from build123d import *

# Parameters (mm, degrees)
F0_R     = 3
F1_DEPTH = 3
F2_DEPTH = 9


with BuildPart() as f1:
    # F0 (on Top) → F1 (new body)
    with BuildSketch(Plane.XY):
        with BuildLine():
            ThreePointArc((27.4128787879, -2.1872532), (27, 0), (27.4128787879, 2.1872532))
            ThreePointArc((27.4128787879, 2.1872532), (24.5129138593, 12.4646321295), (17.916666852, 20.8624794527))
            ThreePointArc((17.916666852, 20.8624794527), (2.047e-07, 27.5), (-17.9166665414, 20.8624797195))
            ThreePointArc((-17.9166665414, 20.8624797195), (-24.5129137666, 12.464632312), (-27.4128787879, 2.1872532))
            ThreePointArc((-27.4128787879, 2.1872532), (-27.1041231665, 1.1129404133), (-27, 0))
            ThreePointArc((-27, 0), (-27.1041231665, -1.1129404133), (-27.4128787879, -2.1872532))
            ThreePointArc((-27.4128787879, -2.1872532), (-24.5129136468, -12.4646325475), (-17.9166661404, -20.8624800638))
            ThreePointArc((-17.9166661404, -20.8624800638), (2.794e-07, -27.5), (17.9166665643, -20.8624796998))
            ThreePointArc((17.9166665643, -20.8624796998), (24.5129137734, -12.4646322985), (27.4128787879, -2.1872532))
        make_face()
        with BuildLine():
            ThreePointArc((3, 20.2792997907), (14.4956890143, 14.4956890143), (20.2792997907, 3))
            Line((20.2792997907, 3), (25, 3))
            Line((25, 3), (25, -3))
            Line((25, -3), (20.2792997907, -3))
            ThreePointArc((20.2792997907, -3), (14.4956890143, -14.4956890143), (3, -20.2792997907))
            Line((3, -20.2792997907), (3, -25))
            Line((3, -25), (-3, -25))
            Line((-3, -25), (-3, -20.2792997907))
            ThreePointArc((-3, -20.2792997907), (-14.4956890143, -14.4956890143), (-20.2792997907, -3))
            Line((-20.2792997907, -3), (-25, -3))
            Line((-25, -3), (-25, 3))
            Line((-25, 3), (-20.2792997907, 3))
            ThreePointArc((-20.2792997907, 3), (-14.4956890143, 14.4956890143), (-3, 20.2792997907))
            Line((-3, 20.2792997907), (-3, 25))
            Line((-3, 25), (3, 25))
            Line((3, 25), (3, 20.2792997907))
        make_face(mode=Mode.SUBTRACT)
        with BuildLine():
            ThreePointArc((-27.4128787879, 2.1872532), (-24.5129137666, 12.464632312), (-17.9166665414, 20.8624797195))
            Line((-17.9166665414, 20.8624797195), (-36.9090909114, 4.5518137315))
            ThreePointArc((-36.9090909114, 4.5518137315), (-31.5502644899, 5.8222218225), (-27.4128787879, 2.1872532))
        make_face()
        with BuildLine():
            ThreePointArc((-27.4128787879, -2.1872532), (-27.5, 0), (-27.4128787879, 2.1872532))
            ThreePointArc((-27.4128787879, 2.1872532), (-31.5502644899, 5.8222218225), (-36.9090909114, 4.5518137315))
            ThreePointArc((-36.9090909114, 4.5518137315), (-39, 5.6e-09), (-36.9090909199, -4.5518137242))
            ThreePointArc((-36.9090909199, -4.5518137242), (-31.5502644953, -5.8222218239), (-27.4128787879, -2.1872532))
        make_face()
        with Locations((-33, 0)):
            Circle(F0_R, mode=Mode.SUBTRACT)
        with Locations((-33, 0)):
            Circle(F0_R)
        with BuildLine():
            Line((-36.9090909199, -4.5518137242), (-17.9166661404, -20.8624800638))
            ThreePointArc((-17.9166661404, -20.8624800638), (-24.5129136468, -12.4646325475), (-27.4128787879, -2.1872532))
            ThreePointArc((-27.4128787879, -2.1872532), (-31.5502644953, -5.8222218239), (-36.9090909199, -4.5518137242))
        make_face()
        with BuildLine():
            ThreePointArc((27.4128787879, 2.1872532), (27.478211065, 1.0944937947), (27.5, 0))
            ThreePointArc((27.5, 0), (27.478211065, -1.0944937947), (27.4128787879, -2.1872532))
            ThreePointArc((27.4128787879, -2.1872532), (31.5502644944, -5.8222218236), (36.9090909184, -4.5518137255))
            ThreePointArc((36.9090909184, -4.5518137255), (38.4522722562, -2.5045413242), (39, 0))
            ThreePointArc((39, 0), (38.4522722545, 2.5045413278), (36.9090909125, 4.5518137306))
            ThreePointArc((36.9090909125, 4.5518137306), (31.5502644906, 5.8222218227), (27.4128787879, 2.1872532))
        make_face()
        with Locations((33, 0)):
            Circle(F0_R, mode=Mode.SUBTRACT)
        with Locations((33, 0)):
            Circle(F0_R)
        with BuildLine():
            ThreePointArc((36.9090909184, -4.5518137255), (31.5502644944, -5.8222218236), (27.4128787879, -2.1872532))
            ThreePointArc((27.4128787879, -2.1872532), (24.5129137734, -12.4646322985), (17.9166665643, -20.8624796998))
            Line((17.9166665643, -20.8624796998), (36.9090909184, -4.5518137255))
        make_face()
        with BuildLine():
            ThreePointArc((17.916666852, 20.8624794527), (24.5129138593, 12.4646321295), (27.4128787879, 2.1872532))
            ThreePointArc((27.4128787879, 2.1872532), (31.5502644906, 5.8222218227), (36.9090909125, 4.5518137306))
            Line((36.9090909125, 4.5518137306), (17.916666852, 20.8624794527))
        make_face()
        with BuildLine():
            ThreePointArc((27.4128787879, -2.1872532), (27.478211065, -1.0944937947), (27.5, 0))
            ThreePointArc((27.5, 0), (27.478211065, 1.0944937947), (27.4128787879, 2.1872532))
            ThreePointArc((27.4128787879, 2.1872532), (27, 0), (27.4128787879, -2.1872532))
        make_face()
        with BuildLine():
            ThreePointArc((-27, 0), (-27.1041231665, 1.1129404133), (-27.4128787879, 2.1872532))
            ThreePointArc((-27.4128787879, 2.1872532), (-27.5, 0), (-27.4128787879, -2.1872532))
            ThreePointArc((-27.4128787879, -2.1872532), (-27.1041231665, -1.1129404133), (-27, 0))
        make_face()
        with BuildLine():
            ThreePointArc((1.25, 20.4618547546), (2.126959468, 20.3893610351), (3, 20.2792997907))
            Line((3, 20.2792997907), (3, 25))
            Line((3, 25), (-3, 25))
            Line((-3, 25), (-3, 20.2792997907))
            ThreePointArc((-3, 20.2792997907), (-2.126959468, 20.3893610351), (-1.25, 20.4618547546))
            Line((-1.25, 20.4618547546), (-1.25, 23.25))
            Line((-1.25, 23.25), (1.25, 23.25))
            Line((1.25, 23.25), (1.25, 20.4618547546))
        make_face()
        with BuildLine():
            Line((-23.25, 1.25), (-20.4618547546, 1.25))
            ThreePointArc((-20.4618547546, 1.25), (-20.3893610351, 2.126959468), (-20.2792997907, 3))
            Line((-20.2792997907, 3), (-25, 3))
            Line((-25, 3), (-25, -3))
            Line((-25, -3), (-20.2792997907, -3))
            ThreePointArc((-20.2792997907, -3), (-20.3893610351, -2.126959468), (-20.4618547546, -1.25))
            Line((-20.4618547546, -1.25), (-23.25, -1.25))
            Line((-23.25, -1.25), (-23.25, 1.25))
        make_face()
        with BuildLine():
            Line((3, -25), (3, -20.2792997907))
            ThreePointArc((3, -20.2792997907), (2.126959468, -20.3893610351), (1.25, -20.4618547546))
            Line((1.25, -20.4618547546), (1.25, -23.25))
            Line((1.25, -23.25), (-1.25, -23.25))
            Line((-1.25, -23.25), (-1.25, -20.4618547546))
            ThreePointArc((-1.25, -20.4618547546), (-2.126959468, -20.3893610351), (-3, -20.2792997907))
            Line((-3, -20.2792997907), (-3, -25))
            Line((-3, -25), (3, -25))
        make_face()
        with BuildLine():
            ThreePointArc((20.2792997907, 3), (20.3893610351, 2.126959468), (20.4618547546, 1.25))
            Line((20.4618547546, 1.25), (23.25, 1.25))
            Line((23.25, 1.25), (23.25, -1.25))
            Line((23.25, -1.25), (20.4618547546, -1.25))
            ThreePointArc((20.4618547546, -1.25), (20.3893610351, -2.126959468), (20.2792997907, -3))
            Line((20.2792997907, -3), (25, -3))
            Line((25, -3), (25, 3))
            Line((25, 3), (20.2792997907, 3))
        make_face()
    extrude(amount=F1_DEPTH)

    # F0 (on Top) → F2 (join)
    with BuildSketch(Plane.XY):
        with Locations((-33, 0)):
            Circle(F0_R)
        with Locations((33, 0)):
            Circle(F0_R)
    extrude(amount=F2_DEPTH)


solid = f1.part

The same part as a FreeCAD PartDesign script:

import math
import FreeCAD as App
import Part
import Sketcher
from FreeCAD import Vector
Q = App.Units.Quantity

doc = App.newDocument("Part")
body = doc.addObject("PartDesign::Body", "Body")

# Sketch on XY plane
sketch1 = body.newObject("Sketcher::SketchObject", "Sketch")
sketch1.AttachmentSupport = (doc.getObject("XY_Plane"), [""])
sketch1.MapMode = "FlatFace"
sketch1.addGeometry([
    Part.ArcOfCircle(Part.Circle(Vector(33, 0, 0), Vector(0, 0, 1), 6), math.radians(0), math.radians(49)),  # 0
    Part.LineSegment(Vector(36.9, 4.6, 0), Vector(17.9, 20.9, 0)),  # 1
    Part.ArcOfCircle(Part.Circle(Vector(0, 0, 0), Vector(0, 0, 1), 27.5), math.radians(49), math.radians(131)),  # 2
    Part.LineSegment(Vector(-17.9, 20.9, 0), Vector(-36.9, 4.6, 0)),  # 3
    Part.ArcOfCircle(Part.Circle(Vector(-33, 0, 0), Vector(0, 0, 1), 6), math.radians(131), math.radians(229)),  # 4
    Part.LineSegment(Vector(-36.9, -4.6, 0), Vector(-17.9, -20.9, 0)),  # 5
    Part.ArcOfCircle(Part.Circle(Vector(0, 0, 0), Vector(0, 0, 1), 27.5), math.radians(-131), math.radians(-49)),  # 6
    Part.LineSegment(Vector(17.9, -20.9, 0), Vector(36.9, -4.6, 0)),  # 7
    Part.ArcOfCircle(Part.Circle(Vector(33, 0, 0), Vector(0, 0, 1), 6), math.radians(-49), math.radians(0)),  # 8
    Part.ArcOfCircle(Part.Circle(Vector(0, 0, 0), Vector(0, 0, 1), 20.5), math.radians(8), math.radians(82)),  # 9
    Part.ArcOfCircle(Part.Circle(Vector(0, 0, 0), Vector(0, 0, 1), 20.5), math.radians(3.5), math.radians(8.41)),  # 10
    Part.LineSegment(Vector(20.5, 1.2, 0), Vector(23.2, 1.2, 0)),  # 11
    Part.LineSegment(Vector(23.2, 1.2, 0), Vector(23.2, -1.2, 0)),  # 12
    Part.LineSegment(Vector(23.2, -1.2, 0), Vector(20.5, -1.2, 0)),  # 13
    Part.ArcOfCircle(Part.Circle(Vector(0, 0, 0), Vector(0, 0, 1), 20.5), math.radians(-8.41), math.radians(-3.5)),  # 14
    Part.ArcOfCircle(Part.Circle(Vector(0, 0, 0), Vector(0, 0, 1), 20.5), math.radians(-82), math.radians(-8)),  # 15
    Part.ArcOfCircle(Part.Circle(Vector(0, 0, 0), Vector(0, 0, 1), 20.5), math.radians(-86.5), math.radians(-81.59)),  # 16
    Part.LineSegment(Vector(1.2, -20.5, 0), Vector(1.2, -23.2, 0)),  # 17
    Part.LineSegment(Vector(1.2, -23.2, 0), Vector(-1.2, -23.2, 0)),  # 18
    Part.LineSegment(Vector(-1.2, -23.2, 0), Vector(-1.2, -20.5, 0)),  # 19
    Part.ArcOfCircle(Part.Circle(Vector(0, 0, 0), Vector(0, 0, 1), 20.5), math.radians(-98.41), math.radians(-93.5)),  # 20
    Part.ArcOfCircle(Part.Circle(Vector(0, 0, 0), Vector(0, 0, 1), 20.5), math.radians(-172), math.radians(-98)),  # 21
    Part.ArcOfCircle(Part.Circle(Vector(0, 0, 0), Vector(0, 0, 1), 20.5), math.radians(-176.5), math.radians(-171.59)),  # 22
    Part.LineSegment(Vector(-20.5, -1.2, 0), Vector(-23.2, -1.2, 0)),  # 23
    Part.LineSegment(Vector(-23.2, -1.2, 0), Vector(-23.2, 1.2, 0)),  # 24
    Part.LineSegment(Vector(-23.2, 1.2, 0), Vector(-20.5, 1.2, 0)),  # 25
    Part.ArcOfCircle(Part.Circle(Vector(0, 0, 0), Vector(0, 0, 1), 20.5), math.radians(171.59), math.radians(176.5)),  # 26
    Part.ArcOfCircle(Part.Circle(Vector(0, 0, 0), Vector(0, 0, 1), 20.5), math.radians(98), math.radians(172)),  # 27
    Part.ArcOfCircle(Part.Circle(Vector(0, 0, 0), Vector(0, 0, 1), 20.5), math.radians(93.5), math.radians(98.41)),  # 28
    Part.LineSegment(Vector(-1.2, 20.5, 0), Vector(-1.2, 23.2, 0)),  # 29
    Part.LineSegment(Vector(-1.2, 23.2, 0), Vector(1.2, 23.2, 0)),  # 30
    Part.LineSegment(Vector(1.2, 23.2, 0), Vector(1.2, 20.5, 0)),  # 31
    Part.ArcOfCircle(Part.Circle(Vector(0, 0, 0), Vector(0, 0, 1), 20.5), math.radians(81.59), math.radians(86.5)),  # 32
], False)
sketch1.addConstraint([
    Sketcher.Constraint("Tangent", 0, 2, 1, 1),
    Sketcher.Constraint("Tangent", 1, 2, 2, 1),
    Sketcher.Constraint("Tangent", 2, 2, 3, 1),
    Sketcher.Constraint("Tangent", 3, 2, 4, 1),
    Sketcher.Constraint("Tangent", 4, 2, 5, 1),
    Sketcher.Constraint("Tangent", 5, 2, 6, 1),
    Sketcher.Constraint("Tangent", 6, 2, 7, 1),
    Sketcher.Constraint("Tangent", 7, 2, 8, 1),
    Sketcher.Constraint("Tangent", 8, 2, 0, 1),
    Sketcher.Constraint("Tangent", 9, 1, 10, 2),
    Sketcher.Constraint("Coincident", 10, 1, 11, 1),
    Sketcher.Constraint("Coincident", 11, 2, 12, 1),
    Sketcher.Constraint("Coincident", 12, 2, 13, 1),
    Sketcher.Constraint("Coincident", 13, 2, 14, 2),
    Sketcher.Constraint("Tangent", 14, 1, 15, 2),
    Sketcher.Constraint("Tangent", 15, 1, 16, 2),
    Sketcher.Constraint("Coincident", 16, 1, 17, 1),
    Sketcher.Constraint("Coincident", 17, 2, 18, 1),
    Sketcher.Constraint("Coincident", 18, 2, 19, 1),
    Sketcher.Constraint("Coincident", 19, 2, 20, 2),
    Sketcher.Constraint("Tangent", 20, 1, 21, 2),
    Sketcher.Constraint("Tangent", 21, 1, 22, 2),
    Sketcher.Constraint("Coincident", 22, 1, 23, 1),
    Sketcher.Constraint("Coincident", 23, 2, 24, 1),
    Sketcher.Constraint("Coincident", 24, 2, 25, 1),
    Sketcher.Constraint("Coincident", 25, 2, 26, 2),
    Sketcher.Constraint("Tangent", 26, 1, 27, 2),
    Sketcher.Constraint("Tangent", 27, 1, 28, 2),
    Sketcher.Constraint("Coincident", 28, 1, 29, 1),
    Sketcher.Constraint("Coincident", 29, 2, 30, 1),
    Sketcher.Constraint("Coincident", 30, 2, 31, 1),
    Sketcher.Constraint("Coincident", 31, 2, 32, 2),
    Sketcher.Constraint("Tangent", 32, 1, 9, 2),
    Sketcher.Constraint("Horizontal", 11),
    Sketcher.Constraint("Vertical", 12),
    Sketcher.Constraint("Horizontal", 13),
    Sketcher.Constraint("Vertical", 17),
    Sketcher.Constraint("Horizontal", 18),
    Sketcher.Constraint("Vertical", 19),
    Sketcher.Constraint("Horizontal", 23),
    Sketcher.Constraint("Vertical", 24),
    Sketcher.Constraint("Horizontal", 25),
    Sketcher.Constraint("Vertical", 29),
    Sketcher.Constraint("Horizontal", 30),
    Sketcher.Constraint("Vertical", 31),
    Sketcher.Constraint("Coincident", 2, 3, -1, 1),
    Sketcher.Constraint("Coincident", 6, 3, -1, 1),
    Sketcher.Constraint("Coincident", 9, 3, -1, 1),
    Sketcher.Constraint("Coincident", 14, 3, -1, 1),
    Sketcher.Constraint("Coincident", 16, 3, -1, 1),
    Sketcher.Constraint("Coincident", 20, 3, -1, 1),
    Sketcher.Constraint("Coincident", 22, 3, -1, 1),
    Sketcher.Constraint("Coincident", 26, 3, -1, 1),
    Sketcher.Constraint("Coincident", 28, 3, -1, 1),
    Sketcher.Constraint("Equal", 0, 4),
    Sketcher.Constraint("Equal", 2, 6),
    Sketcher.Constraint("Equal", 4, 8),
    Sketcher.Constraint("Equal", 9, 10),
    Sketcher.Constraint("Equal", 10, 14),
    Sketcher.Constraint("Equal", 16, 20),
    Sketcher.Constraint("Equal", 22, 26),
    Sketcher.Constraint("Equal", 28, 32),
    Sketcher.Constraint("Symmetric", 0, 3, 4, 3, -1, 1),
    Sketcher.Constraint("Symmetric", 11, 2, 23, 2, -1, 1),
    Sketcher.Constraint("Symmetric", 17, 2, 29, 2, -1, 1),
    Sketcher.Constraint("PointOnObject", 0, 3, -1),
    Sketcher.Constraint("PointOnObject", 8, 2, -1),
    Sketcher.Constraint("Horizontal", 16, 1, 19, 2),
    Sketcher.Constraint("Horizontal", 15, 1, 20, 1),
    Sketcher.Constraint("Horizontal", 14, 1, 21, 1),
    Sketcher.Constraint("Horizontal", 13, 2, 22, 1),
    Sketcher.Constraint("Horizontal", 11, 2, 24, 2),
    Sketcher.Constraint("Horizontal", 9, 1, 26, 1),
    Sketcher.Constraint("Horizontal", 28, 1, 31, 2),
    Sketcher.Constraint("Horizontal", 27, 1, 32, 1),
    Sketcher.Constraint("Vertical", 9, 1, 14, 1),
    Sketcher.Constraint("Vertical", 20, 1, 27, 1),
    Sketcher.Constraint("Equal", 30, 12),
    Sketcher.Constraint("Equal", 25, 17),
    Sketcher.Constraint("Radius", 0, Q("6 mm")),
    Sketcher.Constraint("Radius", 2, Q("27.5 mm")),
    Sketcher.Constraint("Radius", 9, Q("20.5 mm")),
    Sketcher.Constraint("DistanceX", 18, 2, 18, 1, Q("2.5 mm")),
    Sketcher.Constraint("DistanceX", -1, 1, 0, 3, Q("33 mm")),
    Sketcher.Constraint("DistanceY", -1, 1, 9, 1, Q("3 mm")),
    Sketcher.Constraint("DistanceX", -1, 1, 15, 1, Q("3 mm")),
    Sketcher.Constraint("DistanceX", -1, 1, 11, 2, Q("23.25 mm")),
])
pad1 = body.newObject("PartDesign::Pad", "Pad")
pad1.Profile = sketch1
pad1.Length = 3

# Sketch on XY plane
sketch2 = body.newObject("Sketcher::SketchObject", "Sketch001")
sketch2.AttachmentSupport = (doc.getObject("XY_Plane"), [""])
sketch2.MapMode = "FlatFace"
sketch2.addGeometry([
    Part.Circle(Vector(-33, 0, 0), Vector(0, 0, 1), 3),
    Part.Circle(Vector(33, 0, 0), Vector(0, 0, 1), 3),
], False)
sketch2.addConstraint([
    Sketcher.Constraint("Equal", 0, 1),
    Sketcher.Constraint("Symmetric", 0, 3, 1, 3, -1, 1),
    Sketcher.Constraint("PointOnObject", 0, 3, -1),
    Sketcher.Constraint("Diameter", 0, Q("6 mm")),
    Sketcher.Constraint("DistanceX", 0, 3, -1, 1, Q("33 mm")),
])
pad2 = body.newObject("PartDesign::Pad", "Pad001")
pad2.Profile = sketch2
pad2.Length = 9

doc.recompute()
